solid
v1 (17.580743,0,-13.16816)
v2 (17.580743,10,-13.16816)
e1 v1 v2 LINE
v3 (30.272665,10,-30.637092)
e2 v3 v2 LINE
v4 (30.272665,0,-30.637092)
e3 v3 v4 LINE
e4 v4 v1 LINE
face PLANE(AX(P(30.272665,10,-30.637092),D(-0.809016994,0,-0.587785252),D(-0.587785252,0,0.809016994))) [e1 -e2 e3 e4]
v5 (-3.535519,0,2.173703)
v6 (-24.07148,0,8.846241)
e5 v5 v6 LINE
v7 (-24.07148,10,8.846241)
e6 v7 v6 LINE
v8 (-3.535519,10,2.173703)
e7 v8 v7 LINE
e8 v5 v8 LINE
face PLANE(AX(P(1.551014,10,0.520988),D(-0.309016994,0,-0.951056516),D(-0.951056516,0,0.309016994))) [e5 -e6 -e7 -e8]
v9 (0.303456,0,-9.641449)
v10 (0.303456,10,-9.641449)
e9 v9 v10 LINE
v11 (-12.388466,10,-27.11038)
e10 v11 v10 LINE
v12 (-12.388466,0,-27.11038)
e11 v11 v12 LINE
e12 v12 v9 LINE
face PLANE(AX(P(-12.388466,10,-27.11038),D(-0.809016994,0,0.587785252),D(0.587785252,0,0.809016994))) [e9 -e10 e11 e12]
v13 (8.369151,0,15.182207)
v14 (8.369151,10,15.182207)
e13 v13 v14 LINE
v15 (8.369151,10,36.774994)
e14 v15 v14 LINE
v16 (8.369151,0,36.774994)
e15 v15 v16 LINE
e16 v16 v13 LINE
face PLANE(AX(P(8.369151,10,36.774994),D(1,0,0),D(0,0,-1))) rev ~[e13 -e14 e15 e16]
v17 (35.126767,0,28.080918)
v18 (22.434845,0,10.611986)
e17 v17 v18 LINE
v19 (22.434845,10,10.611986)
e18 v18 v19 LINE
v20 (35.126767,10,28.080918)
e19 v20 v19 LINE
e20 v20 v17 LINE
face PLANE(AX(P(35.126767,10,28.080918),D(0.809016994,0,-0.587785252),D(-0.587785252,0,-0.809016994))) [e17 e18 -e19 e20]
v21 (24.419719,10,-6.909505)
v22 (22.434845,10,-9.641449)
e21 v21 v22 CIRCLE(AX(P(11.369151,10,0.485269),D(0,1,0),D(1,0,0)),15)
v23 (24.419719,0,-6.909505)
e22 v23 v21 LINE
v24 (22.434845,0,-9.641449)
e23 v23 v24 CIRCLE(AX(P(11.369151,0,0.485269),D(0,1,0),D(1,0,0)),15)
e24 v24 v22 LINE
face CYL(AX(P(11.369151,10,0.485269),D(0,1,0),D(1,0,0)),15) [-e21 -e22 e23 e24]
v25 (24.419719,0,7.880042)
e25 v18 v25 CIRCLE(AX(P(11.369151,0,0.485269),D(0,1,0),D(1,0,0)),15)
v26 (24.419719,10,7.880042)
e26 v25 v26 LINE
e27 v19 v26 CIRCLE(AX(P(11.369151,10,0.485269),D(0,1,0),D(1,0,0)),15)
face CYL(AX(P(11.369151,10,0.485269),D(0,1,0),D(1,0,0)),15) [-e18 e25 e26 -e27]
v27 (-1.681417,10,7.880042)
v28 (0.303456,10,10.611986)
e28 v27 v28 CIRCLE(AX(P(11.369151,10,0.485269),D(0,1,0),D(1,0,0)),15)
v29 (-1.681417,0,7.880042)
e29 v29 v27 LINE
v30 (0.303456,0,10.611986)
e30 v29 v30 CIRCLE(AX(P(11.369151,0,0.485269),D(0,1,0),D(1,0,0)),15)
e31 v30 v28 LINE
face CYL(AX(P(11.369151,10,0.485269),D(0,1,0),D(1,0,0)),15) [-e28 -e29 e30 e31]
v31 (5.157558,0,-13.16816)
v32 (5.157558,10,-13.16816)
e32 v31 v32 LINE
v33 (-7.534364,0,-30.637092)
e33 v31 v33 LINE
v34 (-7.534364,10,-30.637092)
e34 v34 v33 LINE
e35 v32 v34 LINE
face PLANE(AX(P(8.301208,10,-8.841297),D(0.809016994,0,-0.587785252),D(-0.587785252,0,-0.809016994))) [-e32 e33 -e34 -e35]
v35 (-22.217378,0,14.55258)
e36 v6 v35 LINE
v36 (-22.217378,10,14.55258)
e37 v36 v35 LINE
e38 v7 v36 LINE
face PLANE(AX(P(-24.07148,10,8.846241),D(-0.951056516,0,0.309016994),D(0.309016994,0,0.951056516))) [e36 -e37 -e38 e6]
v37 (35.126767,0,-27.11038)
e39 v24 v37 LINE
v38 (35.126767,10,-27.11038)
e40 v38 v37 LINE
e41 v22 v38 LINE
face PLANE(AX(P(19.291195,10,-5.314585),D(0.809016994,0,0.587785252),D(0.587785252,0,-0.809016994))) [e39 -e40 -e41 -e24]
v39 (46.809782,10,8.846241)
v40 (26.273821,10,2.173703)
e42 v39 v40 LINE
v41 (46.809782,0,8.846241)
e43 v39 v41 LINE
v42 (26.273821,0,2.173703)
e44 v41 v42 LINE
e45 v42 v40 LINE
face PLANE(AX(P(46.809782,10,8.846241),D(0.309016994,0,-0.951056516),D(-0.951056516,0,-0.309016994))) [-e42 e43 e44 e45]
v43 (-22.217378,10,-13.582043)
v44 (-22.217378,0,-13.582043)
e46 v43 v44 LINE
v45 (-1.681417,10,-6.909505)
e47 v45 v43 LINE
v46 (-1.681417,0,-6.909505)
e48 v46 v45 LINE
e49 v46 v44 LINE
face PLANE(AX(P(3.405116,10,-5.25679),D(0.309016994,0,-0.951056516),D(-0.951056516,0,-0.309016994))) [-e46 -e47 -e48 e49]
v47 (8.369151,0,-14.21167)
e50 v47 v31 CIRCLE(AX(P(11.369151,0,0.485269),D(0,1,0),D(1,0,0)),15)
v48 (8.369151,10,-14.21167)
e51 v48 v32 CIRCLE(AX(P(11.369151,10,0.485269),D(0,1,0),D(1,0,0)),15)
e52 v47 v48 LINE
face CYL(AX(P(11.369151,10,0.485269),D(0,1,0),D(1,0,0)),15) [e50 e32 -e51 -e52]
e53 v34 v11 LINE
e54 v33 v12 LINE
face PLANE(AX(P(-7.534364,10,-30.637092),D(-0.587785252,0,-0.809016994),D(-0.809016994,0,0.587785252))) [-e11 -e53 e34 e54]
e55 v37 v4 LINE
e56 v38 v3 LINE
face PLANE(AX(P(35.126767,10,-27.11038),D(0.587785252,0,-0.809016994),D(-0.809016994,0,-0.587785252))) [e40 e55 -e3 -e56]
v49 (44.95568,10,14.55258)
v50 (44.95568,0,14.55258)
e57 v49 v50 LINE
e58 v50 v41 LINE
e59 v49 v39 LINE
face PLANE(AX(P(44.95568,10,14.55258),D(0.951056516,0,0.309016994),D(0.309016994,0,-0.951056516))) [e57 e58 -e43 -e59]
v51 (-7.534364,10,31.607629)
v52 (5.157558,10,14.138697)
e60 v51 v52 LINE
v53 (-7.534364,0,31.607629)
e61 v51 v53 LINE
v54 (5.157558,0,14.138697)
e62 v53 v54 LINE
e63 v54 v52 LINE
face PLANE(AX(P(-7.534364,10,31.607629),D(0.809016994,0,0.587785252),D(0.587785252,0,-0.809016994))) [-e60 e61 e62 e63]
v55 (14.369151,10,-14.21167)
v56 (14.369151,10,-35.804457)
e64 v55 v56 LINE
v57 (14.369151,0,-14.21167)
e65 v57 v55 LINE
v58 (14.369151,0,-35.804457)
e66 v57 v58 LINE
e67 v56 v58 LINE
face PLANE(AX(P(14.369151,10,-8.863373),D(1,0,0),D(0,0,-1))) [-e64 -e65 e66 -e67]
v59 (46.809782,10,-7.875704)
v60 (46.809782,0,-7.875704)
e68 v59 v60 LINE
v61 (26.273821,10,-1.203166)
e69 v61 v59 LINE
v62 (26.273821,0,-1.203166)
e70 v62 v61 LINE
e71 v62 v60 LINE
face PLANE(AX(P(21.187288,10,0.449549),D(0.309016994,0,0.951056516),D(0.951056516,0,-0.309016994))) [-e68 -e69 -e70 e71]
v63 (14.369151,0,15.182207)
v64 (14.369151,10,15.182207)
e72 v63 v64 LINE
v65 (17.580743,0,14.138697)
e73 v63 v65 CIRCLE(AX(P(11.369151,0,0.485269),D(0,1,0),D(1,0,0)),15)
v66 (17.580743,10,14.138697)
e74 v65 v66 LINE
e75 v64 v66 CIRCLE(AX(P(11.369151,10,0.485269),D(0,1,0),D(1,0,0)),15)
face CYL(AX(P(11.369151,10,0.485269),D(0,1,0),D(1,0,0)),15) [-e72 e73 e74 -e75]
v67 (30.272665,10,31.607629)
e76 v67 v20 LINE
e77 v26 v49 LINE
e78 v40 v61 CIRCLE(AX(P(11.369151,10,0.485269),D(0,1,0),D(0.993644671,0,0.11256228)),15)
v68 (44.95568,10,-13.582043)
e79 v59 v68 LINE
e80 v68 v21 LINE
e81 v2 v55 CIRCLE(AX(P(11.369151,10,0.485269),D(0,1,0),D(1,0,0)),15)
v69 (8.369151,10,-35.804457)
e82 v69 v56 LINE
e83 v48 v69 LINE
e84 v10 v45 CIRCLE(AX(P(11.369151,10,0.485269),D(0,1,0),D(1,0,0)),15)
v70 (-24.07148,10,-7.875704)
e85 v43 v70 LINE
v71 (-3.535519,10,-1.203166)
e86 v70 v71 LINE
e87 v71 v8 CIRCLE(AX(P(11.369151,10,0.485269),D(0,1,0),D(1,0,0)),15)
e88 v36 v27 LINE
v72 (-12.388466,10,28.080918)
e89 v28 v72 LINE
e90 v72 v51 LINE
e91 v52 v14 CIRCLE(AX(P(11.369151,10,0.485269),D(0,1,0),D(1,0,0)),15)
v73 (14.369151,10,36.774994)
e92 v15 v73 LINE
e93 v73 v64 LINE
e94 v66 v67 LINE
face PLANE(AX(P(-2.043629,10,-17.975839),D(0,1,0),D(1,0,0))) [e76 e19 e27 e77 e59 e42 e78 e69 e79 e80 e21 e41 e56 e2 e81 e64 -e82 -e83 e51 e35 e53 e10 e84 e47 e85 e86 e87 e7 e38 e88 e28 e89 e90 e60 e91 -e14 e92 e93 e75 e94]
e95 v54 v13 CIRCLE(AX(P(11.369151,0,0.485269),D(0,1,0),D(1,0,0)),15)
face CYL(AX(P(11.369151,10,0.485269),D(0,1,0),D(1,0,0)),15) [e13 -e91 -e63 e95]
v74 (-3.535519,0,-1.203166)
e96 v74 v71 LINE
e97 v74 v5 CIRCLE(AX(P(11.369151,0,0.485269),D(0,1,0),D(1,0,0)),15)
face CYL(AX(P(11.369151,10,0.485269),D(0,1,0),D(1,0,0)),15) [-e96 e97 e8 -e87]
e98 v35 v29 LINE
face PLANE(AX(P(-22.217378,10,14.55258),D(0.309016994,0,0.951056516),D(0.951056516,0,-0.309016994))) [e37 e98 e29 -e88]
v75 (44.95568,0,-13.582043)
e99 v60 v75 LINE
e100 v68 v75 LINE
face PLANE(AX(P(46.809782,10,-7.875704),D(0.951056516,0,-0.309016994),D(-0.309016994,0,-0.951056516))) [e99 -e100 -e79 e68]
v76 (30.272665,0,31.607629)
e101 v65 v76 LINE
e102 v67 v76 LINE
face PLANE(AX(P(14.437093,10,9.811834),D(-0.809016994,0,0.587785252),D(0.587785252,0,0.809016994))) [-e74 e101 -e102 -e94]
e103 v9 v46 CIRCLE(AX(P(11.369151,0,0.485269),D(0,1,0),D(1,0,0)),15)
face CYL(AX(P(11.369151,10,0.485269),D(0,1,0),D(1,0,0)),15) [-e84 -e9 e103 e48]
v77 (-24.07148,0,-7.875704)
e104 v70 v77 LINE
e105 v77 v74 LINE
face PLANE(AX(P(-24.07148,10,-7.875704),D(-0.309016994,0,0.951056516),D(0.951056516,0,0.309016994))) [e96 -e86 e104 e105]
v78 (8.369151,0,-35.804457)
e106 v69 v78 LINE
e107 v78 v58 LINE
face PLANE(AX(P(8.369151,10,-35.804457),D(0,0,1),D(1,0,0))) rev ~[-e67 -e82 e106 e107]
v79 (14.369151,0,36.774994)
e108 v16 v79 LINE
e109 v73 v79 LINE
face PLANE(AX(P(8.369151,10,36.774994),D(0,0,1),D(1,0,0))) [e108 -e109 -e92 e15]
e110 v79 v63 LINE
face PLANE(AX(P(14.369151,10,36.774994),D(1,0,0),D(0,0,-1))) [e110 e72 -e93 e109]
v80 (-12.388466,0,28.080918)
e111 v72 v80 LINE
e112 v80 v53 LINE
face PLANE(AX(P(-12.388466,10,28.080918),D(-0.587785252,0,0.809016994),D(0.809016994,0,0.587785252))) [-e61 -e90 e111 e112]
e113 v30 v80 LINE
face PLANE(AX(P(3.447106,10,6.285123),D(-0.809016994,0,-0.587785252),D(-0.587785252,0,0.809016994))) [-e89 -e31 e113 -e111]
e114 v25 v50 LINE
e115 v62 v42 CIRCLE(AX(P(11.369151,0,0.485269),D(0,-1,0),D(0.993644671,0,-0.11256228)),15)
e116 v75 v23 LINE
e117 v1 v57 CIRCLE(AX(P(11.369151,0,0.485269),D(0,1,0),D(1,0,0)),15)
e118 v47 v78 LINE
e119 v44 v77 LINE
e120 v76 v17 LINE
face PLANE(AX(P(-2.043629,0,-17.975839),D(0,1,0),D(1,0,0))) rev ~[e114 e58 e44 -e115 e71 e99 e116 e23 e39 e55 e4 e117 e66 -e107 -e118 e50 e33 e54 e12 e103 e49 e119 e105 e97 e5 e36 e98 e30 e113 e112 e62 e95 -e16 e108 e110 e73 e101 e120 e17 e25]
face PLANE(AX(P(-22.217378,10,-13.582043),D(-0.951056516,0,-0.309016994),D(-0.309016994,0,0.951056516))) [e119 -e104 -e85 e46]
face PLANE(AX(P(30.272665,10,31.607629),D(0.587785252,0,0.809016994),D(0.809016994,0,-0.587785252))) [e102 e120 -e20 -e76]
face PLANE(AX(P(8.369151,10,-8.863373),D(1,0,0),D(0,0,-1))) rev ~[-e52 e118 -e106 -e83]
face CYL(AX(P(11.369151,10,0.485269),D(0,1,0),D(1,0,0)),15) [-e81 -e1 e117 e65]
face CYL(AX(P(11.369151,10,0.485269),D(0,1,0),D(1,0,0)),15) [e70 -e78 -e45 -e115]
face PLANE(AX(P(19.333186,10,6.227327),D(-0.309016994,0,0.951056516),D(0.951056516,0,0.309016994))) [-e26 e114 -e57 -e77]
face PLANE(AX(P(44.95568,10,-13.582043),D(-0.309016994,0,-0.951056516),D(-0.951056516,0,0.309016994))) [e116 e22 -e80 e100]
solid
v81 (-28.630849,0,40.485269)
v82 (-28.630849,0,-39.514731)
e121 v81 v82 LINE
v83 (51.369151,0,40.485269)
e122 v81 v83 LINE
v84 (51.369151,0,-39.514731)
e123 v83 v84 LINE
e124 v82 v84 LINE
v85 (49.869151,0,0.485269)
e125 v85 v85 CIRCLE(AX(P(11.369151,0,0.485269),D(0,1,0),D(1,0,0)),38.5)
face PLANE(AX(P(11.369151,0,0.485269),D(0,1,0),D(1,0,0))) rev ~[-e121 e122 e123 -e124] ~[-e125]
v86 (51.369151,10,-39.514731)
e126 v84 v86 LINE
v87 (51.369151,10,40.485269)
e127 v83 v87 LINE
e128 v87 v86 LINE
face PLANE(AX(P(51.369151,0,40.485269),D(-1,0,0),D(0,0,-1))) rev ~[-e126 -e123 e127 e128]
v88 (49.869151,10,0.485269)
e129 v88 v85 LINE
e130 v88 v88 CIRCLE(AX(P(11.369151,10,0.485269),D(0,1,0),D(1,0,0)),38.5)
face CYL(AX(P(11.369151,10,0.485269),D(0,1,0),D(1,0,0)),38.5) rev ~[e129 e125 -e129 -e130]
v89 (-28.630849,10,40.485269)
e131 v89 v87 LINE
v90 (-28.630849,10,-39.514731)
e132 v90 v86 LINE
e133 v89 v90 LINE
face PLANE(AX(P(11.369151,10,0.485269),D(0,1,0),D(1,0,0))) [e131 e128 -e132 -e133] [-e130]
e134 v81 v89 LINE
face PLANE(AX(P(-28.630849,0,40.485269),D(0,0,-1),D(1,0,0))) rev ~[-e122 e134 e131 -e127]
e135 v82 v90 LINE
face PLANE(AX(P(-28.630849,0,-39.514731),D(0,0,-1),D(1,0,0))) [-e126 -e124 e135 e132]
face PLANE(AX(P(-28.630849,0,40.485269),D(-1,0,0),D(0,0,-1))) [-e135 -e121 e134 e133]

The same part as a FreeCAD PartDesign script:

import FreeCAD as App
import Part
import Sketcher

V = App.Vector
Q = App.Units.Quantity


def add_polygon(sketch, points):
    """Adds a closed chain of lines whose ends are joined by coincident constraints."""
    first, n = sketch.GeometryCount, len(points)
    for a, b in zip(points, points[1:] + points[:1]):
        sketch.addGeometry(Part.LineSegment(App.Vector(*a, 0), App.Vector(*b, 0)), False)
    for i in range(n):
        sketch.addConstraint(Sketcher.Constraint("Coincident", first + i, 2, first + (i + 1) % n, 1))

doc = App.newDocument("Part")
params = doc.addObject("Spreadsheet::Sheet", "Params")
for row, (alias, value) in enumerate([
    ("sketch1_width", "80 mm"),
    ("pad1_length", "10 mm"),
    ("sketch2_diameter", "77 mm"),
    ("sketch2_diameter2", "30 mm"),
    ("pocket1_length", "10 mm"),
    ("sketch3_width", "6 mm"),
    ("sketch3_length", "6 mm"),
    ("pad2_length", "10 mm"),
], start=1):
    params.set(f"A{row}", alias)
    params.set(f"B{row}", "=" + value)
    params.setAlias(f"B{row}", alias)

body = doc.addObject("PartDesign::Body", "Body")
body.AllowCompound = True

# Sketch on XZ plane
sketch1 = body.newObject("Sketcher::SketchObject", "Sketch")
sketch1.AttachmentSupport = (doc.getObject("XZ_Plane"), [""])
sketch1.MapMode = "FlatFace"
add_polygon(sketch1, [(-29, -40), (-29, 40), (51, 40), (51, -40)])  # lines 0-3
sketch1.addConstraint([
    Sketcher.Constraint("Vertical", 0),
    Sketcher.Constraint("Horizontal", 1),
    Sketcher.Constraint("Vertical", 2),
    Sketcher.Constraint("Horizontal", 3),
    Sketcher.Constraint("Equal", 3, 0),
    Sketcher.Constraint("DistanceX", 1, 1, 1, 2, 80.0),
    Sketcher.Constraint("DistanceX", 0, 2, -1, 1, 28.630849),
    Sketcher.Constraint("DistanceY", -1, 1, 0, 2, 40.485269),
])
sketch1.setExpression("Constraints[9]", "Params.sketch1_width")
pad1 = body.newObject("PartDesign::Pad", "Pad")
pad1.Profile = sketch1
pad1.setExpression("Length", "Params.pad1_length")
pad1.Reversed = True

# Sketch on XZ plane
sketch2 = body.newObject("Sketcher::SketchObject", "Sketch001")
sketch2.AttachmentSupport = (doc.getObject("XZ_Plane"), [""])
sketch2.MapMode = "FlatFace"
sketch2.AttachmentOffset = App.Placement(V(0, 0, -10), App.Rotation())
sketch2.addGeometry([
    Part.Circle(V(11, 0, 0), V(0, 0, 1), 38),
    Part.Circle(V(11, 0, 0), V(0, 0, 1), 15),
], False)
sketch2.addConstraint([
    Sketcher.Constraint("Coincident", 1, 3, 0, 3),
    Sketcher.Constraint("Diameter", 0, 77.0),
    Sketcher.Constraint("Diameter", 1, 30.0),
    Sketcher.Constraint("DistanceX", -1, 1, 0, 3, 11.369151),
    Sketcher.Constraint("DistanceY", -1, 1, 0, 3, 0.485269),
])
sketch2.setExpression("Constraints[1]", "Params.sketch2_diameter")
sketch2.setExpression("Constraints[2]", "Params.sketch2_diameter2")
pocket1 = body.newObject("PartDesign::Pocket", "Pocket")
pocket1.Profile = sketch2
pocket1.setExpression("Length", "Params.pocket1_length")
pocket1.Reversed = True

# Sketch on XZ plane
sketch3 = body.newObject("Sketcher::SketchObject", "Sketch002")
sketch3.AttachmentSupport = (doc.getObject("XZ_Plane"), [""])
sketch3.MapMode = "FlatFace"
sketch3.AttachmentOffset = App.Placement(V(0, 0, -10), App.Rotation())
add_polygon(sketch3, [(-12, -27), (3, -5), (8, -9), (-8, -31)])  # lines 0-3
add_polygon(sketch3, [(8, -36), (8, -9), (14, -9), (14, -36)])  # lines 4-7
add_polygon(sketch3, [(-24, -8), (2, 0), (3, -5), (-22, -14)])  # lines 8-11
add_polygon(sketch3, [(-22, 15), (3, 6), (2, 1), (-24, 9)])  # lines 12-15
add_polygon(sketch3, [(-8, 32), (8, 10), (3, 6), (-12, 28)])  # lines 16-19
add_polygon(sketch3, [(8, 10), (8, 37), (14, 37), (14, 10)])  # lines 20-23
add_polygon(sketch3, [(35, 28), (19, 6), (14, 10), (30, 32)])  # lines 24-27
add_polygon(sketch3, [(47, 9), (21, 1), (19, 6), (45, 15)])  # lines 28-31
add_polygon(sketch3, [(45, -14), (19, -5), (21, 0), (47, -8)])  # lines 32-35
add_polygon(sketch3, [(30, -31), (14, -9), (19, -5), (35, -27)])  # lines 36-39
sketch3.addConstraint([
    Sketcher.Constraint("Vertical", 4),
    Sketcher.Constraint("Horizontal", 5),
    Sketcher.Constraint("Vertical", 6),
    Sketcher.Constraint("Horizontal", 7),
    Sketcher.Constraint("Vertical", 20),
    Sketcher.Constraint("Horizontal", 21),
    Sketcher.Constraint("Vertical", 22),
    Sketcher.Constraint("Horizontal", 23),
    Sketcher.Constraint("Perpendicular", 0, 1),
    Sketcher.Constraint("Perpendicular", 1, 2),
    Sketcher.Constraint("Perpendicular", 2, 3),
    Sketcher.Constraint("Perpendicular", 8, 9),
    Sketcher.Constraint("Perpendicular", 9, 10),
    Sketcher.Constraint("Perpendicular", 10, 11),
    Sketcher.Constraint("Perpendicular", 12, 13),
    Sketcher.Constraint("Perpendicular", 13, 14),
    Sketcher.Constraint("Perpendicular", 14, 15),
    Sketcher.Constraint("Perpendicular", 16, 17),
    Sketcher.Constraint("Perpendicular", 17, 18),
    Sketcher.Constraint("Perpendicular", 18, 19),
    Sketcher.Constraint("Perpendicular", 3, 24),
    Sketcher.Constraint("Perpendicular", 24, 25),
    Sketcher.Constraint("Perpendicular", 25, 26),
    Sketcher.Constraint("Perpendicular", 26, 27),
    Sketcher.Constraint("Perpendicular", 11, 28),
    Sketcher.Constraint("Perpendicular", 28, 29),
    Sketcher.Constraint("Perpendicular", 29, 30),
    Sketcher.Constraint("Perpendicular", 30, 31),
    Sketcher.Constraint("Perpendicular", 15, 32),
    Sketcher.Constraint("Perpendicular", 32, 33),
    Sketcher.Constraint("Perpendicular", 33, 34),
    Sketcher.Constraint("Perpendicular", 34, 35),
    Sketcher.Constraint("Perpendicular", 19, 36),
    Sketcher.Constraint("Perpendicular", 36, 37),
    Sketcher.Constraint("Perpendicular", 37, 38),
    Sketcher.Constraint("Perpendicular", 38, 39),
    Sketcher.Constraint("Horizontal", 17, 2, 24, 2),
    Sketcher.Constraint("Horizontal", 16, 2, 25, 2),
    Sketcher.Constraint("Horizontal", 19, 2, 26, 2),
    Sketcher.Constraint("Horizontal", 13, 2, 28, 2),
    Sketcher.Constraint("Horizontal", 12, 2, 29, 2),
    Sketcher.Constraint("Horizontal", 15, 2, 30, 2),
    Sketcher.Constraint("Horizontal", 9, 2, 32, 2),
    Sketcher.Constraint("Horizontal", 8, 2, 33, 2),
    Sketcher.Constraint("Horizontal", 11, 2, 34, 2),
    Sketcher.Constraint("Horizontal", 1, 2, 36, 2),
    Sketcher.Constraint("Horizontal", 0, 2, 37, 2),
    Sketcher.Constraint("Horizontal", 3, 2, 38, 2),
    Sketcher.Constraint("Vertical", 9, 2, 12, 2),
    Sketcher.Constraint("Vertical", 8, 2, 13, 2),
    Sketcher.Constraint("Vertical", 11, 2, 14, 2),
    Sketcher.Constraint("Vertical", 1, 2, 16, 2),
    Sketcher.Constraint("Vertical", 0, 2, 17, 2),
    Sketcher.Constraint("Vertical", 3, 2, 18, 2),
    Sketcher.Constraint("Vertical", 7, 2, 20, 2),
    Sketcher.Constraint("Vertical", 6, 2, 21, 2),
    Sketcher.Constraint("Vertical", 29, 2, 32, 2),
    Sketcher.Constraint("Vertical", 28, 2, 33, 2),
    Sketcher.Constraint("Vertical", 25, 2, 36, 2),
    Sketcher.Constraint("Vertical", 24, 2, 37, 2),
    Sketcher.Constraint("Equal", 6, 20),
    Sketcher.Constraint("Equal", 2, 8),
    Sketcher.Constraint("Equal", 3, 9),
    Sketcher.Constraint("DistanceX", 5, 1, 5, 2, 6.0),
    Sketcher.Constraint("Angle", 0, Q("54 deg")),
    Sketcher.Constraint("Angle", 8, Q("18 deg")),
    Sketcher.Constraint("Distance", 1, 6.0),
    Sketcher.Constraint("DistanceY", 4, 2, 12, 2, 15.0907),
    Sketcher.Constraint("DistanceY", 12, 2, 19, 2, 25.380302),
    Sketcher.Constraint("DistanceY", 4, 1, 4, 2, 26.941084),
    Sketcher.Constraint("DistanceX", -1, 1, 1, 2, 8.301208),
    Sketcher.Constraint("DistanceY", 2, 2, -1, 1, 30.637092),
    Sketcher.Constraint("DistanceX", -1, 1, 4, 2, 8.369151),
    Sketcher.Constraint("DistanceY", -1, 1, 8, 2, 0.449549),
    Sketcher.Constraint("DistanceX", 10, 2, -1, 1, 22.217378),
    Sketcher.Constraint("DistanceY", -1, 1, 13, 2, 0.520988),
    Sketcher.Constraint("DistanceY", -1, 1, 14, 2, 8.846241),
    Sketcher.Constraint("DistanceY", -1, 1, 22, 2, 9.83391),
    Sketcher.Constraint("DistanceX", -1, 1, 30, 2, 44.95568),
    Sketcher.Constraint("DistanceX", 17, 2, 24, 2, 15.844089),
])
sketch3.setExpression("Constraints[103]", "Params.sketch3_width")
sketch3.setExpression("Constraints[106]", "Params.sketch3_length")
pad2 = body.newObject("PartDesign::Pad", "Pad001")
pad2.Profile = sketch3
pad2.setExpression("Length", "Params.pad2_length")

doc.recompute()
